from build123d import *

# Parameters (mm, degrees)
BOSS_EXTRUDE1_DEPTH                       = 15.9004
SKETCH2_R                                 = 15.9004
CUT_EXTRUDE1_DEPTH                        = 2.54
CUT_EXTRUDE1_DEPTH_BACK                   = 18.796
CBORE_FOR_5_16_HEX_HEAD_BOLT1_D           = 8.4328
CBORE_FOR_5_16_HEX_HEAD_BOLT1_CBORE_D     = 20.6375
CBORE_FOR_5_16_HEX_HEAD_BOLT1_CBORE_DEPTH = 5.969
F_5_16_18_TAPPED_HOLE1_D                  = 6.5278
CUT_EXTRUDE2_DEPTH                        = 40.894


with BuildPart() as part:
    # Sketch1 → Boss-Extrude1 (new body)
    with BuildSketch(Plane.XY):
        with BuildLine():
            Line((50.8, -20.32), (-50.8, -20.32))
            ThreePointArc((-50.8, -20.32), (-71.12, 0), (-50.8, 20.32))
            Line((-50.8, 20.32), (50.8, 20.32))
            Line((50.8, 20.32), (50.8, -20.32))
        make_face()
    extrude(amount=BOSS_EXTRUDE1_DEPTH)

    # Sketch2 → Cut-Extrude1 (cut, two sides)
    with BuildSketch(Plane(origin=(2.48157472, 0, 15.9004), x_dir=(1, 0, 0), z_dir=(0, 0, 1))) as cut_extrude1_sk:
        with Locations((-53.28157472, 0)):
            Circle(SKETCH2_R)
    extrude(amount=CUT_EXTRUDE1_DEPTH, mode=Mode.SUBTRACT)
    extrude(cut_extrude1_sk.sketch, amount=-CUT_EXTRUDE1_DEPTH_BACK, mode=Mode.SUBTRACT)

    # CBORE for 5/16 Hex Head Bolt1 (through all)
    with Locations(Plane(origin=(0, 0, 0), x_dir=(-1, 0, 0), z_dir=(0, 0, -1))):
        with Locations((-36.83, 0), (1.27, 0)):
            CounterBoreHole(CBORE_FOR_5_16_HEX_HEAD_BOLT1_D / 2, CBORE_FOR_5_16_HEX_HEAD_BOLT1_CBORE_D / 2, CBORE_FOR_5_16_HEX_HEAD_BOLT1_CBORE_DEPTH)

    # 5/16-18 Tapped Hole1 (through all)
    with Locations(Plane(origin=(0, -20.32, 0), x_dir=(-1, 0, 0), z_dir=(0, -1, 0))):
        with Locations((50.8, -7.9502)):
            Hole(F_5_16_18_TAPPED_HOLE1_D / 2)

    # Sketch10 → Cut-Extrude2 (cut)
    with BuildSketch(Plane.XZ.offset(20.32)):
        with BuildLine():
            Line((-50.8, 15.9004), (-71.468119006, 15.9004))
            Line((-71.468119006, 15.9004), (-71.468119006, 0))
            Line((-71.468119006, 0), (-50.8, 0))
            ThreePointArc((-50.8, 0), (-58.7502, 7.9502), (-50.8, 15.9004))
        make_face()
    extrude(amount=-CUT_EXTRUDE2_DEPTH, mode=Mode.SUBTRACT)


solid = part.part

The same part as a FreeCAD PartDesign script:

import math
import FreeCAD as App
import Part
import Sketcher
Q = App.Units.Quantity

doc = App.newDocument("Part")
body = doc.addObject("PartDesign::Body", "Body")

# Sketch on XY plane
sketch1 = body.newObject("Sketcher::SketchObject", "Sketch")
sketch1.AttachmentSupport = (doc.getObject("XY_Plane"), [""])
sketch1.MapMode = "FlatFace"
sketch1.addGeometry([
    Part.LineSegment(App.Vector(-50.8, -20.32, 0), App.Vector(50.8, -20.32, 0)),
    Part.LineSegment(App.Vector(50.8, -20.32, 0), App.Vector(50.8, 20.32, 0)),
    Part.LineSegment(App.Vector(50.8, 20.32, 0), App.Vector(-50.8, 20.32, 0)),
    Part.ArcOfCircle(Part.Circle(App.Vector(-50.8, 0, 0), App.Vector(0, 0, 1), 20.32), math.radians(90), math.radians(270)),
], False)
sketch1.addConstraint([
    Sketcher.Constraint("Coincident", 0, 2, 1, 1),
    Sketcher.Constraint("Coincident", 1, 2, 2, 1),
    Sketcher.Constraint("Tangent", 2, 2, 3, 1),
    Sketcher.Constraint("Tangent", 3, 2, 0, 1),
    Sketcher.Constraint("Horizontal", 0),
    Sketcher.Constraint("Vertical", 1),
    Sketcher.Constraint("Horizontal", 2),
    Sketcher.Constraint("Symmetric", 0, 2, 2, 2, -1, 1),
    Sketcher.Constraint("Radius", 3, Q("0.8 in")),
    Sketcher.Constraint("DistanceX", 0, 1, 0, 2, Q("4 in")),
])
pad1 = body.newObject("PartDesign::Pad", "Pad")
pad1.Profile = sketch1
pad1.Length = Q("0.626 in")

# Sketch on XY plane
sketch2 = body.newObject("Sketcher::SketchObject", "Sketch001")
sketch2.AttachmentSupport = (doc.getObject("XY_Plane"), [""])
sketch2.MapMode = "FlatFace"
sketch2.AttachmentOffset = App.Placement(App.Vector(0, 0, 0.626 * 25.4), App.Rotation())
sketch2.addGeometry(Part.Circle(App.Vector(-50.8, 0, 0), App.Vector(0, 0, 1), 15.9004), False)
sketch2.addConstraint([
    Sketcher.Constraint("PointOnObject", 0, 3, -1),
    Sketcher.Constraint("Diameter", 0, Q("1.252 in")),
    Sketcher.Constraint("DistanceX", 0, 3, -1, 1, Q("2 in")),
])
pocket1 = body.newObject("PartDesign::Pocket", "Pocket")
pocket1.Profile = sketch2
pocket1.Type = "ThroughAll"
pocket1.Midplane = True

# Sketch on XY plane
sketch3 = body.newObject("Sketcher::SketchObject", "Sketch002")
sketch3.AttachmentSupport = (doc.getObject("XY_Plane"), [""])
sketch3.MapMode = "FlatFace"
sketch3.addGeometry([
    Part.Circle(App.Vector(36.83, 0, 0), App.Vector(0, 0, 1), 4.2164),
    Part.Circle(App.Vector(-1.27, 0, 0), App.Vector(0, 0, 1), 4.2164),
], False)
sketch3.addConstraint([
    Sketcher.Constraint("Equal", 0, 1),
    Sketcher.Constraint("PointOnObject", 0, 3, -1),
    Sketcher.Constraint("PointOnObject", 1, 3, -1),
    Sketcher.Constraint("Diameter", 0, Q("0.332 in")),
    Sketcher.Constraint("DistanceX", 1, 3, 0, 3, Q("1.5 in")),
    Sketcher.Constraint("DistanceX", -1, 1, 0, 3, Q("1.45 in")),
])
doc.recompute()
hole = body.newObject("PartDesign::Hole", "Hole")
hole.Profile = sketch3
hole.ThreadType = "None"
hole.Diameter = Q("0.332 in")
hole.DepthType = "ThroughAll"
hole.HoleCutType = "Counterbore"
hole.HoleCutDiameter = Q("0.8125 in")
hole.HoleCutDepth = Q("0.235 in")
hole.Reversed = True

# Sketch on XZ plane
sketch4 = body.newObject("Sketcher::SketchObject", "Sketch003")
sketch4.AttachmentSupport = (doc.getObject("XZ_Plane"), [""])
sketch4.MapMode = "FlatFace"
sketch4.AttachmentOffset = App.Placement(App.Vector(0, 0, 0.8 * 25.4), App.Rotation())
sketch4.addGeometry(Part.Circle(App.Vector(-50.8, 7.9502, 0), App.Vector(0, 0, 1), 3.2639), False)
sketch4.addConstraint([
    Sketcher.Constraint("Diameter", 0, Q("0.257 in")),
    Sketcher.Constraint("DistanceX", 0, 3, -1, 1, Q("2 in")),
    Sketcher.Constraint("DistanceY", -1, 1, 0, 3, Q("0.313 in")),
])
doc.recompute()
hole2 = body.newObject("PartDesign::Hole", "Hole001")
hole2.Profile = sketch4
hole2.ThreadType = "None"
hole2.Diameter = Q("0.257 in")
hole2.DepthType = "ThroughAll"

# Sketch on XZ plane
sketch5 = body.newObject("Sketcher::SketchObject", "Sketch004")
sketch5.AttachmentSupport = (doc.getObject("XZ_Plane"), [""])
sketch5.MapMode = "FlatFace"
sketch5.AttachmentOffset = App.Placement(App.Vector(0, 0, 0.8 * 25.4), App.Rotation())
sketch5.addGeometry([
    Part.LineSegment(App.Vector(-50.8, 15.9004, 0), App.Vector(-71.468119, 15.9004, 0)),
    Part.LineSegment(App.Vector(-71.468119, 15.9004, 0), App.Vector(-71.468119, 0, 0)),
    Part.LineSegment(App.Vector(-71.468119, 0, 0), App.Vector(-50.8, 0, 0)),
    Part.ArcOfCircle(Part.Circle(App.Vector(-50.8, 7.9502, 0), App.Vector(0, 0, 1), 7.9502), math.radians(90), math.radians(270)),
], False)
sketch5.addConstraint([
    Sketcher.Constraint("Coincident", 0, 2, 1, 1),
    Sketcher.Constraint("Coincident", 1, 2, 2, 1),
    Sketcher.Constraint("Tangent", 2, 2, 3, 2),
    Sketcher.Constraint("Tangent", 3, 1, 0, 1),
    Sketcher.Constraint("Horizontal", 0),
    Sketcher.Constraint("Vertical", 1),
    Sketcher.Constraint("Horizontal", 2),
    Sketcher.Constraint("PointOnObject", 1, 2, -1),
    Sketcher.Constraint("DistanceX", 3, 3, -1, 1, Q("2 in")),
    Sketcher.Constraint("Radius", 3, Q("0.313 in")),
    Sketcher.Constraint("DistanceX", 0, 2, 0, 1, Q("20.668119 mm")),
])
pocket2 = body.newObject("PartDesign::Pocket", "Pocket001")
pocket2.Profile = sketch5
pocket2.Length = Q("1.61 in")

doc.recompute()
